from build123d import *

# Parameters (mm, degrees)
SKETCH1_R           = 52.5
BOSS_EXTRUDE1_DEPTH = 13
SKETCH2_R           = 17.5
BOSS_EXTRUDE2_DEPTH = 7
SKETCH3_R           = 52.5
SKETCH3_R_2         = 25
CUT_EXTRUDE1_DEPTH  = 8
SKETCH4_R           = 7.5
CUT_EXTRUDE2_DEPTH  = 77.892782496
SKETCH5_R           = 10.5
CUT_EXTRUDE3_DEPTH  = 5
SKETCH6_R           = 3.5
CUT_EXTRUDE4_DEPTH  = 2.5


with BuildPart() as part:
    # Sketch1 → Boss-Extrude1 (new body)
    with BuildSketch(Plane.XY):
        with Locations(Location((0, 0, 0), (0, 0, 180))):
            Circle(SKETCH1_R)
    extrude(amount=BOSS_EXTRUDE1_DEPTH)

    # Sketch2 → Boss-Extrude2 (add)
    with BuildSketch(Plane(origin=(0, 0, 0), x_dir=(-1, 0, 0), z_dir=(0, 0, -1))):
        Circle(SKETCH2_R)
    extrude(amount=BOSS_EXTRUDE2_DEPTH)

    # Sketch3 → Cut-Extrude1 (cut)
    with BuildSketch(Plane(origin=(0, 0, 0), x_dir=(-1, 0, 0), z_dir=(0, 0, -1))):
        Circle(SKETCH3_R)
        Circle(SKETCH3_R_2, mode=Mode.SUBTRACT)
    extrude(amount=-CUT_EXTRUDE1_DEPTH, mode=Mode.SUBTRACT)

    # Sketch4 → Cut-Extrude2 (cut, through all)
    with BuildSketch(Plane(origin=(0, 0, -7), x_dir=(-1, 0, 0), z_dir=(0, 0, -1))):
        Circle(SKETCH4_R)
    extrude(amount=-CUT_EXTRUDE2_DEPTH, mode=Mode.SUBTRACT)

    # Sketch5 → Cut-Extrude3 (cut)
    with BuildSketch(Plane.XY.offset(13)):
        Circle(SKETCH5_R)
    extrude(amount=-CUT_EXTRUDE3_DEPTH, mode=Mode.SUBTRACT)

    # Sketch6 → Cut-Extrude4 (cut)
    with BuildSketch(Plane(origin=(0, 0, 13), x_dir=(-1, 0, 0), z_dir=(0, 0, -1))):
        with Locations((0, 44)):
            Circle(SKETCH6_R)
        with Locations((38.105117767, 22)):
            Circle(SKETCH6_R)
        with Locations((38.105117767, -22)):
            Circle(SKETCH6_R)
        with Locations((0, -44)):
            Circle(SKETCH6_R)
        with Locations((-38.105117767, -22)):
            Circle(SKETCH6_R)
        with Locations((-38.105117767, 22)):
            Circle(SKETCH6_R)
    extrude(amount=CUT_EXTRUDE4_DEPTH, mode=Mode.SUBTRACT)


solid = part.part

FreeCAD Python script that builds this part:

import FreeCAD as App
import Part
import Sketcher
Q = App.Units.Quantity

doc = App.newDocument("Part")
body = doc.addObject("PartDesign::Body", "Body")

# Sketch on XY plane
sketch1 = body.newObject("Sketcher::SketchObject", "Sketch")
sketch1.AttachmentSupport = (doc.getObject("XY_Plane"), [""])
sketch1.MapMode = "FlatFace"
sketch1.addGeometry(Part.Circle(App.Vector(0, 0, 0), App.Vector(0, 0, 1), 52), False)
sketch1.addConstraint([
    Sketcher.Constraint("Coincident", 0, 3, -1, 1),
    Sketcher.Constraint("Diameter", 0, Q("105 mm")),
])
pad1 = body.newObject("PartDesign::Pad", "Pad")
pad1.Profile = sketch1
pad1.Length = 13

# Sketch on XY plane
sketch2 = body.newObject("Sketcher::SketchObject", "Sketch001")
sketch2.AttachmentSupport = (doc.getObject("XY_Plane"), [""])
sketch2.MapMode = "FlatFace"
sketch2.addGeometry(Part.Circle(App.Vector(0, 0, 0), App.Vector(0, 0, 1), 18), False)
sketch2.addConstraint([
    Sketcher.Constraint("Coincident", 0, 3, -1, 1),
    Sketcher.Constraint("Diameter", 0, Q("35 mm")),
])
pad2 = body.newObject("PartDesign::Pad", "Pad001")
pad2.Profile = sketch2
pad2.Length = 7
pad2.Reversed = True

# Sketch on XY plane
sketch3 = body.newObject("Sketcher::SketchObject", "Sketch002")
sketch3.AttachmentSupport = (doc.getObject("XY_Plane"), [""])
sketch3.MapMode = "FlatFace"
sketch3.addGeometry([
    Part.Circle(App.Vector(0, 0, 0), App.Vector(0, 0, 1), 52),
    Part.Circle(App.Vector(0, 0, 0), App.Vector(0, 0, 1), 25),
], False)
sketch3.addConstraint([
    Sketcher.Constraint("Coincident", 0, 3, -1, 1),
    Sketcher.Constraint("Coincident", 1, 3, -1, 1),
    Sketcher.Constraint("Diameter", 0, Q("105 mm")),
    Sketcher.Constraint("Diameter", 1, Q("50 mm")),
])
pocket1 = body.newObject("PartDesign::Pocket", "Pocket")
pocket1.Profile = sketch3
pocket1.Length = 8
pocket1.Reversed = True

# Sketch on XY plane
sketch4 = body.newObject("Sketcher::SketchObject", "Sketch003")
sketch4.AttachmentSupport = (doc.getObject("XY_Plane"), [""])
sketch4.MapMode = "FlatFace"
sketch4.AttachmentOffset = App.Placement(App.Vector(0, 0, -7), App.Rotation())
sketch4.addGeometry(Part.Circle(App.Vector(0, 0, 0), App.Vector(0, 0, 1), 8), False)
sketch4.addConstraint([
    Sketcher.Constraint("Coincident", 0, 3, -1, 1),
    Sketcher.Constraint("Diameter", 0, Q("15 mm")),
])
pocket2 = body.newObject("PartDesign::Pocket", "Pocket001")
pocket2.Profile = sketch4
pocket2.Type = "ThroughAll"
pocket2.Reversed = True

# Sketch on XY plane
sketch5 = body.newObject("Sketcher::SketchObject", "Sketch004")
sketch5.AttachmentSupport = (doc.getObject("XY_Plane"), [""])
sketch5.MapMode = "FlatFace"
sketch5.AttachmentOffset = App.Placement(App.Vector(0, 0, 13), App.Rotation())
sketch5.addGeometry(Part.Circle(App.Vector(0, 0, 0), App.Vector(0, 0, 1), 10), False)
sketch5.addConstraint([
    Sketcher.Constraint("Coincident", 0, 3, -1, 1),
    Sketcher.Constraint("Diameter", 0, Q("21 mm")),
])
pocket3 = body.newObject("PartDesign::Pocket", "Pocket002")
pocket3.Profile = sketch5
pocket3.Length = 5

# Sketch on XY plane
sketch6 = body.newObject("Sketcher::SketchObject", "Sketch005")
sketch6.AttachmentSupport = (doc.getObject("XY_Plane"), [""])
sketch6.MapMode = "FlatFace"
sketch6.AttachmentOffset = App.Placement(App.Vector(0, 0, 13), App.Rotation())
sketch6.addGeometry([
    Part.Circle(App.Vector(0, 44, 0), App.Vector(0, 0, 1), 3.5),  # 0
    Part.Circle(App.Vector(-38.1, 22, 0), App.Vector(0, 0, 1), 3.5),  # 1
    Part.Circle(App.Vector(-38.1, -22, 0), App.Vector(0, 0, 1), 3.5),  # 2
    Part.Circle(App.Vector(0, -44, 0), App.Vector(0, 0, 1), 3.5),  # 3
    Part.Circle(App.Vector(38.1, -22, 0), App.Vector(0, 0, 1), 3.5),  # 4
    Part.Circle(App.Vector(38.1, 22, 0), App.Vector(0, 0, 1), 3.5),  # 5
], False)
sketch6.addConstraint([
    Sketcher.Constraint("Equal", 0, 1),
    Sketcher.Constraint("Equal", 1, 2),
    Sketcher.Constraint("Equal", 2, 3),
    Sketcher.Constraint("Equal", 3, 4),
    Sketcher.Constraint("Equal", 4, 5),
    Sketcher.Constraint("Symmetric", 0, 3, 3, 3, -1, 1),
    Sketcher.Constraint("Symmetric", 1, 3, 4, 3, -1, 1),
    Sketcher.Constraint("Symmetric", 2, 3, 5, 3, -1, 1),
    Sketcher.Constraint("Symmetric", 2, 3, 4, 3, -2),
    Sketcher.Constraint("PointOnObject", 0, 3, -2),
    Sketcher.Constraint("Diameter", 0, Q("7 mm")),
    Sketcher.Constraint("DistanceY", -1, 1, 0, 3, Q("44 mm")),
    Sketcher.Constraint("DistanceY", -1, 1, 1, 3, Q("22 mm")),
    Sketcher.Constraint("DistanceX", 1, 3, -1, 1, Q("38.105118 mm")),
])
pocket4 = body.newObject("PartDesign::Pocket", "Pocket003")
pocket4.Profile = sketch6
pocket4.Length = 2.5

doc.recompute()
